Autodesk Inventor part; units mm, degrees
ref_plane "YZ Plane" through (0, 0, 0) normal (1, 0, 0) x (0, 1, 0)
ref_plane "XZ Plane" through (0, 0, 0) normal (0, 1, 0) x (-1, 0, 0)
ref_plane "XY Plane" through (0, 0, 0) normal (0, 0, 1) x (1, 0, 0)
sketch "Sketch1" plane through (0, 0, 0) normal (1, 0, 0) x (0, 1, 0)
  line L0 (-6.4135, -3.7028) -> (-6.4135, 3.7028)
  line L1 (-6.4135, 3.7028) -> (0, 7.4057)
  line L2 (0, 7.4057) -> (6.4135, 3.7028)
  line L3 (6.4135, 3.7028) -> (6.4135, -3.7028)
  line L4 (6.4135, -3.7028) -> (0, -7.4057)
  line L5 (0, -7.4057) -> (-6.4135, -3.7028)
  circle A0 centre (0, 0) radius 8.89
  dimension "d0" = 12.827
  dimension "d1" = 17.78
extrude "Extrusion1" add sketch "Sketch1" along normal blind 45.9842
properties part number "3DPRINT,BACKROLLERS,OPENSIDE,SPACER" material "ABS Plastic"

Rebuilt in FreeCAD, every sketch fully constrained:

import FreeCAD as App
import Part
import Sketcher
Q = App.Units.Quantity

doc = App.newDocument("Part")
body = doc.addObject("PartDesign::Body", "Body")

# Sketch on YZ plane
sketch1 = body.newObject("Sketcher::SketchObject", "Sketch")
sketch1.AttachmentSupport = (doc.getObject("YZ_Plane"), [""])
sketch1.MapMode = "FlatFace"
sketch1.addGeometry([
    Part.Circle(App.Vector(0, 0, 0), App.Vector(0, 0, 1), 9),  # 0
    Part.LineSegment(App.Vector(0, -7, 0), App.Vector(-6, -4, 0)),  # 1
    Part.LineSegment(App.Vector(-6, -4, 0), App.Vector(-6, 4, 0)),  # 2
    Part.LineSegment(App.Vector(-6, 4, 0), App.Vector(0, 7, 0)),  # 3
    Part.LineSegment(App.Vector(0, 7, 0), App.Vector(6, 4, 0)),  # 4
    Part.LineSegment(App.Vector(6, 4, 0), App.Vector(6, -4, 0)),  # 5
    Part.LineSegment(App.Vector(6, -4, 0), App.Vector(0, -7, 0)),  # 6
], False)
sketch1.addConstraint([
    Sketcher.Constraint("Coincident", 1, 2, 2, 1),
    Sketcher.Constraint("Coincident", 2, 2, 3, 1),
    Sketcher.Constraint("Coincident", 3, 2, 4, 1),
    Sketcher.Constraint("Coincident", 4, 2, 5, 1),
    Sketcher.Constraint("Coincident", 5, 2, 6, 1),
    Sketcher.Constraint("Coincident", 6, 2, 1, 1),
    Sketcher.Constraint("Vertical", 2),
    Sketcher.Constraint("Vertical", 5),
    Sketcher.Constraint("Coincident", 0, 3, -1, 1),
    Sketcher.Constraint("Symmetric", 1, 2, 4, 2, -1, 1),
    Sketcher.Constraint("Symmetric", 3, 2, 6, 2, -1, 1),
    Sketcher.Constraint("PointOnObject", 3, 2, -2),
    Sketcher.Constraint("Parallel", 3, 6),
    Sketcher.Constraint("Horizontal", 2, 2, 4, 2),
    Sketcher.Constraint("Diameter", 0, Q("0.7 in")),
    Sketcher.Constraint("Angle", 1, Q("149.9996 deg")),
    Sketcher.Constraint("DistanceX", 2, 2, 4, 2, Q("0.505 in")),
    Sketcher.Constraint("DistanceY", 2, 1, 2, 2, 7.4056),
])
pad1 = body.newObject("PartDesign::Pad", "Pad")
pad1.Profile = sketch1
pad1.Length = Q("1.8104016 in")

doc.recompute()
